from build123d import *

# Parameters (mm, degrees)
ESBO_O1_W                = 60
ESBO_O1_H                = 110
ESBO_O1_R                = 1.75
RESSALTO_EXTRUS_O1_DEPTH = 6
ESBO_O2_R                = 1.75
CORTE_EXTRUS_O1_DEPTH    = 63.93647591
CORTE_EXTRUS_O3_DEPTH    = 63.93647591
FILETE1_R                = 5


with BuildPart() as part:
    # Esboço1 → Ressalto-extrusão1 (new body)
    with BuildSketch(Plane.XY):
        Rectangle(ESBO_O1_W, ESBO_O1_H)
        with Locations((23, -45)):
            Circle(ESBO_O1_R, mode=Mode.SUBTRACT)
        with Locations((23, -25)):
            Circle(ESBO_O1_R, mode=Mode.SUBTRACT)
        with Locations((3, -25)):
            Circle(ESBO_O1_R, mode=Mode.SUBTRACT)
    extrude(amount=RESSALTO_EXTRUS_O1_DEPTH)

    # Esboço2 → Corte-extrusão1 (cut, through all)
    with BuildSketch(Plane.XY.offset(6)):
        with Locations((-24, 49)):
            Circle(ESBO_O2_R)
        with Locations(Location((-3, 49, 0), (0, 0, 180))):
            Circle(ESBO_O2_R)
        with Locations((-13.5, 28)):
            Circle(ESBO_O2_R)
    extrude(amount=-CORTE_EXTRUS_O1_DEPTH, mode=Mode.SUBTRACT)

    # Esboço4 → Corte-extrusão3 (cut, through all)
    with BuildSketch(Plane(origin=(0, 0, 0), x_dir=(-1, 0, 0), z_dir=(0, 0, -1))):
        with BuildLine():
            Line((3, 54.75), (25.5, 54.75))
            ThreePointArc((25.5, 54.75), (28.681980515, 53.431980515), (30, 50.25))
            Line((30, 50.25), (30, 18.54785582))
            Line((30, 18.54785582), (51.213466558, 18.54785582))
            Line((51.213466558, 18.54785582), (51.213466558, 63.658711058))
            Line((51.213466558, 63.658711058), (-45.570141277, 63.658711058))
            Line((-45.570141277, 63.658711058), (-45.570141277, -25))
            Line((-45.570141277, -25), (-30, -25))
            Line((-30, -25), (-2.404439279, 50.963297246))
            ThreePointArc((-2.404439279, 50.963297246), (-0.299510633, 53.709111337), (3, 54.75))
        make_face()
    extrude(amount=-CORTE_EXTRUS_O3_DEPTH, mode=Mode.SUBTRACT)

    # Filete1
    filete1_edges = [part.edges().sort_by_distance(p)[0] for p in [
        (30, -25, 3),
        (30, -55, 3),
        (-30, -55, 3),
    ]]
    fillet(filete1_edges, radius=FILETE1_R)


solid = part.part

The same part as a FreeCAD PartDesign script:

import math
import FreeCAD as App
import Part
import Sketcher


def edges_at(feature, points):
    """Names of the edges that pass closest to the given points."""
    edges = feature.Shape.Edges
    near = lambda p: min(range(len(edges)), key=lambda i: edges[i].distToShape(Part.Vertex(*p))[0])
    return sorted({f"Edge{near(p) + 1}" for p in points})

doc = App.newDocument("Part")
params = doc.addObject("Spreadsheet::Sheet", "Params")
for row, (alias, value) in enumerate([
    ("sketch1_diameter", "3.5 mm"),
    ("sketch1_width", "60 mm"),
    ("sketch1_height", "110 mm"),
    ("pad1_length", "6 mm"),
    ("sketch2_diameter", "3.5 mm"),
    ("sketch3_radius", "4.5 mm"),
    ("sketch3_radius2", "5.75 mm"),
    ("sketch3_width", "22.5 mm"),
    ("fillet_radius", "5 mm"),
], start=1):
    params.set(f"A{row}", alias)
    params.set(f"B{row}", "=" + value)
    params.setAlias(f"B{row}", alias)

body = doc.addObject("PartDesign::Body", "Body")

sketch1 = doc.addObject("Sketcher::SketchObject", "Sketch")
body.addObject(sketch1)
sketch1.AttachmentSupport = (doc.XY_Plane, [""])
sketch1.MapMode = "FlatFace"
sketch1.addGeometry([
    Part.LineSegment(App.Vector(-30, 55, 0), App.Vector(-30, -55, 0)),
    Part.LineSegment(App.Vector(-30, -55, 0), App.Vector(30, -55, 0)),
    Part.LineSegment(App.Vector(30, -55, 0), App.Vector(30, 55, 0)),
    Part.LineSegment(App.Vector(30, 55, 0), App.Vector(-30, 55, 0)),
    Part.Circle(App.Vector(23, -45, 0), App.Vector(0, 0, 1), 1.8),
    Part.Circle(App.Vector(3, -25, 0), App.Vector(0, 0, 1), 1.8),
    Part.Circle(App.Vector(23, -25, 0), App.Vector(0, 0, 1), 1.8),
], False)
sketch1.addConstraint([
    Sketcher.Constraint("Coincident", 0, 2, 1, 1),
    Sketcher.Constraint("Coincident", 1, 2, 2, 1),
    Sketcher.Constraint("Coincident", 2, 2, 3, 1),
    Sketcher.Constraint("Coincident", 3, 2, 0, 1),
    Sketcher.Constraint("Vertical", 0),
    Sketcher.Constraint("Horizontal", 1),
    Sketcher.Constraint("Vertical", 2),
    Sketcher.Constraint("Horizontal", 3),
    Sketcher.Constraint("Equal", 4, 5),
    Sketcher.Constraint("Equal", 5, 6),
    Sketcher.Constraint("Symmetric", 0, 2, 2, 2, -1, 1),
    Sketcher.Constraint("Horizontal", 5, 3, 6, 3),
    Sketcher.Constraint("Vertical", 4, 3, 6, 3),
    Sketcher.Constraint("Diameter", 4, 3.5),
    Sketcher.Constraint("DistanceX", 1, 1, 1, 2, 60.0),
    Sketcher.Constraint("DistanceY", 0, 2, 0, 1, 110.0),
    Sketcher.Constraint("DistanceX", -1, 1, 4, 3, 23.0),
    Sketcher.Constraint("DistanceY", 4, 3, -1, 1, 45.0),
    Sketcher.Constraint("DistanceX", -1, 1, 5, 3, 3.0),
    Sketcher.Constraint("DistanceY", 5, 3, -1, 1, 25.0),
])
sketch1.setExpression("Constraints[13]", "Params.sketch1_diameter")
sketch1.setExpression("Constraints[14]", "Params.sketch1_width")
sketch1.setExpression("Constraints[15]", "Params.sketch1_height")
pad1 = doc.addObject("PartDesign::Pad", "Pad")
body.addObject(pad1)
pad1.Profile = sketch1
pad1.setExpression("Length", "Params.pad1_length")

sketch2 = doc.addObject("Sketcher::SketchObject", "Sketch001")
body.addObject(sketch2)
sketch2.AttachmentSupport = (doc.XY_Plane, [""])
sketch2.MapMode = "FlatFace"
sketch2.AttachmentOffset = App.Placement(App.Vector(0, 0, 6), App.Rotation())
sketch2.addGeometry([
    Part.Circle(App.Vector(-24, 49, 0), App.Vector(0, 0, 1), 1.8),
    Part.Circle(App.Vector(-3, 49, 0), App.Vector(0, 0, 1), 1.8),
    Part.Circle(App.Vector(-13.5, 28, 0), App.Vector(0, 0, 1), 1.8),
], False)
sketch2.addConstraint([
    Sketcher.Constraint("Equal", 0, 1),
    Sketcher.Constraint("Equal", 1, 2),
    Sketcher.Constraint("Horizontal", 0, 3, 1, 3),
    Sketcher.Constraint("Diameter", 0, 3.5),
    Sketcher.Constraint("DistanceX", 0, 3, -1, 1, 24.0),
    Sketcher.Constraint("DistanceY", -1, 1, 0, 3, 49.0),
    Sketcher.Constraint("DistanceX", 1, 3, -1, 1, 3.0),
    Sketcher.Constraint("DistanceY", -1, 1, 2, 3, 28.0),
    Sketcher.Constraint("DistanceX", 2, 3, -1, 1, 13.5),
])
sketch2.setExpression("Constraints[3]", "Params.sketch2_diameter")
pocket1 = doc.addObject("PartDesign::Pocket", "Pocket")
body.addObject(pocket1)
pocket1.Profile = sketch2
pocket1.Type = "ThroughAll"

sketch3 = doc.addObject("Sketcher::SketchObject", "Sketch002")
body.addObject(sketch3)
sketch3.AttachmentSupport = (doc.XY_Plane, [""])
sketch3.MapMode = "FlatFace"
sketch3.addGeometry([
    Part.LineSegment(App.Vector(-3, 54.8, 0), App.Vector(-25.5, 54.8, 0)),
    Part.ArcOfCircle(Part.Circle(App.Vector(-25.5, 50.2, 0), App.Vector(0, 0, 1), 4.5), math.radians(90), math.radians(180)),
    Part.LineSegment(App.Vector(-30, 50.2, 0), App.Vector(-30, 18.5, 0)),
    Part.LineSegment(App.Vector(-30, 18.5, 0), App.Vector(-51.2, 18.5, 0)),
    Part.LineSegment(App.Vector(-51.2, 18.5, 0), App.Vector(-51.2, 63.7, 0)),
    Part.LineSegment(App.Vector(-51.2, 63.7, 0), App.Vector(45.6, 63.7, 0)),
    Part.LineSegment(App.Vector(45.6, 63.7, 0), App.Vector(45.6, -25, 0)),
    Part.LineSegment(App.Vector(45.6, -25, 0), App.Vector(30, -25, 0)),
    Part.LineSegment(App.Vector(30, -25, 0), App.Vector(2.4, 51, 0)),
    Part.ArcOfCircle(Part.Circle(App.Vector(-3, 49, 0), App.Vector(0, 0, 1), 5.7), math.radians(20), math.radians(90)),
], False)
sketch3.addConstraint([
    Sketcher.Constraint("Tangent", 0, 2, 1, 1),
    Sketcher.Constraint("Tangent", 1, 2, 2, 1),
    Sketcher.Constraint("Coincident", 2, 2, 3, 1),
    Sketcher.Constraint("Coincident", 3, 2, 4, 1),
    Sketcher.Constraint("Coincident", 4, 2, 5, 1),
    Sketcher.Constraint("Coincident", 5, 2, 6, 1),
    Sketcher.Constraint("Coincident", 6, 2, 7, 1),
    Sketcher.Constraint("Coincident", 7, 2, 8, 1),
    Sketcher.Constraint("Tangent", 8, 2, 9, 1),
    Sketcher.Constraint("Tangent", 9, 2, 0, 1),
    Sketcher.Constraint("Horizontal", 0),
    Sketcher.Constraint("Vertical", 2),
    Sketcher.Constraint("Horizontal", 3),
    Sketcher.Constraint("Vertical", 4),
    Sketcher.Constraint("Horizontal", 5),
    Sketcher.Constraint("Vertical", 6),
    Sketcher.Constraint("Horizontal", 7),
    Sketcher.Constraint("Radius", 1, 4.5),
    Sketcher.Constraint("Radius", 9, 5.75),
    Sketcher.Constraint("DistanceX", 0, 2, 0, 1, 22.5),
    Sketcher.Constraint("DistanceX", 9, 3, -1, 1, 3.0),
    Sketcher.Constraint("DistanceY", -1, 1, 9, 3, 49.0),
    Sketcher.Constraint("DistanceY", 6, 2, -1, 1, 25.0),
    Sketcher.Constraint("DistanceX", -1, 1, 7, 2, 30.0),
    Sketcher.Constraint("DistanceX", 7, 2, 7, 1, 15.570141),
    Sketcher.Constraint("DistanceY", 6, 2, 6, 1, 88.658711),
    Sketcher.Constraint("DistanceX", 3, 2, 3, 1, 21.213467),
    Sketcher.Constraint("DistanceY", 2, 2, 2, 1, 31.702144),
])
sketch3.setExpression("Constraints[17]", "Params.sketch3_radius")
sketch3.setExpression("Constraints[18]", "Params.sketch3_radius2")
sketch3.setExpression("Constraints[19]", "Params.sketch3_width")
pocket2 = doc.addObject("PartDesign::Pocket", "Pocket001")
body.addObject(pocket2)
pocket2.Profile = sketch3
pocket2.Type = "ThroughAll"
pocket2.Reversed = True
doc.recompute()

fillet = doc.addObject("PartDesign::Fillet", "Fillet")
body.addObject(fillet)
fillet.Base = (pocket2, edges_at(pocket2, [(30, -25, 3), (30, -55, 3), (-30, -55, 3)]))
fillet.setExpression("Radius", "Params.fillet_radius")

doc.recompute()
